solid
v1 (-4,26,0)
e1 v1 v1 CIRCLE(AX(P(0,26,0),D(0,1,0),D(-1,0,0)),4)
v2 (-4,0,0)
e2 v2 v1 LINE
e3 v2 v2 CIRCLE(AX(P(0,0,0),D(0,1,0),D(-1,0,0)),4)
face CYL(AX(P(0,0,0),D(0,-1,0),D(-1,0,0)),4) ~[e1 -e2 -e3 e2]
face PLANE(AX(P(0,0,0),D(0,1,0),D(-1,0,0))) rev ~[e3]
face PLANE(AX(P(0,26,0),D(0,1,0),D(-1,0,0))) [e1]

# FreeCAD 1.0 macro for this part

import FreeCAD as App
import Part
import Sketcher
Q = App.Units.Quantity

doc = App.newDocument("Part")
body = doc.addObject("PartDesign::Body", "Body")

# Sketch on XZ plane
sketch1 = doc.addObject("Sketcher::SketchObject", "Sketch")
body.addObject(sketch1)
sketch1.AttachmentSupport = (doc.XZ_Plane, [""])
sketch1.MapMode = "FlatFace"
sketch1.addGeometry(Part.Circle(App.Vector(0, 0, 0), App.Vector(0, 0, 1), 4), False)
sketch1.addConstraint([
    Sketcher.Constraint("Coincident", 0, 3, -1, 1),
    Sketcher.Constraint("Diameter", 0, Q("8 mm")),
])
pad1 = doc.addObject("PartDesign::Pad", "Pad")
body.addObject(pad1)
pad1.Profile = sketch1
pad1.Length = 26
pad1.Reversed = True

doc.recompute()
